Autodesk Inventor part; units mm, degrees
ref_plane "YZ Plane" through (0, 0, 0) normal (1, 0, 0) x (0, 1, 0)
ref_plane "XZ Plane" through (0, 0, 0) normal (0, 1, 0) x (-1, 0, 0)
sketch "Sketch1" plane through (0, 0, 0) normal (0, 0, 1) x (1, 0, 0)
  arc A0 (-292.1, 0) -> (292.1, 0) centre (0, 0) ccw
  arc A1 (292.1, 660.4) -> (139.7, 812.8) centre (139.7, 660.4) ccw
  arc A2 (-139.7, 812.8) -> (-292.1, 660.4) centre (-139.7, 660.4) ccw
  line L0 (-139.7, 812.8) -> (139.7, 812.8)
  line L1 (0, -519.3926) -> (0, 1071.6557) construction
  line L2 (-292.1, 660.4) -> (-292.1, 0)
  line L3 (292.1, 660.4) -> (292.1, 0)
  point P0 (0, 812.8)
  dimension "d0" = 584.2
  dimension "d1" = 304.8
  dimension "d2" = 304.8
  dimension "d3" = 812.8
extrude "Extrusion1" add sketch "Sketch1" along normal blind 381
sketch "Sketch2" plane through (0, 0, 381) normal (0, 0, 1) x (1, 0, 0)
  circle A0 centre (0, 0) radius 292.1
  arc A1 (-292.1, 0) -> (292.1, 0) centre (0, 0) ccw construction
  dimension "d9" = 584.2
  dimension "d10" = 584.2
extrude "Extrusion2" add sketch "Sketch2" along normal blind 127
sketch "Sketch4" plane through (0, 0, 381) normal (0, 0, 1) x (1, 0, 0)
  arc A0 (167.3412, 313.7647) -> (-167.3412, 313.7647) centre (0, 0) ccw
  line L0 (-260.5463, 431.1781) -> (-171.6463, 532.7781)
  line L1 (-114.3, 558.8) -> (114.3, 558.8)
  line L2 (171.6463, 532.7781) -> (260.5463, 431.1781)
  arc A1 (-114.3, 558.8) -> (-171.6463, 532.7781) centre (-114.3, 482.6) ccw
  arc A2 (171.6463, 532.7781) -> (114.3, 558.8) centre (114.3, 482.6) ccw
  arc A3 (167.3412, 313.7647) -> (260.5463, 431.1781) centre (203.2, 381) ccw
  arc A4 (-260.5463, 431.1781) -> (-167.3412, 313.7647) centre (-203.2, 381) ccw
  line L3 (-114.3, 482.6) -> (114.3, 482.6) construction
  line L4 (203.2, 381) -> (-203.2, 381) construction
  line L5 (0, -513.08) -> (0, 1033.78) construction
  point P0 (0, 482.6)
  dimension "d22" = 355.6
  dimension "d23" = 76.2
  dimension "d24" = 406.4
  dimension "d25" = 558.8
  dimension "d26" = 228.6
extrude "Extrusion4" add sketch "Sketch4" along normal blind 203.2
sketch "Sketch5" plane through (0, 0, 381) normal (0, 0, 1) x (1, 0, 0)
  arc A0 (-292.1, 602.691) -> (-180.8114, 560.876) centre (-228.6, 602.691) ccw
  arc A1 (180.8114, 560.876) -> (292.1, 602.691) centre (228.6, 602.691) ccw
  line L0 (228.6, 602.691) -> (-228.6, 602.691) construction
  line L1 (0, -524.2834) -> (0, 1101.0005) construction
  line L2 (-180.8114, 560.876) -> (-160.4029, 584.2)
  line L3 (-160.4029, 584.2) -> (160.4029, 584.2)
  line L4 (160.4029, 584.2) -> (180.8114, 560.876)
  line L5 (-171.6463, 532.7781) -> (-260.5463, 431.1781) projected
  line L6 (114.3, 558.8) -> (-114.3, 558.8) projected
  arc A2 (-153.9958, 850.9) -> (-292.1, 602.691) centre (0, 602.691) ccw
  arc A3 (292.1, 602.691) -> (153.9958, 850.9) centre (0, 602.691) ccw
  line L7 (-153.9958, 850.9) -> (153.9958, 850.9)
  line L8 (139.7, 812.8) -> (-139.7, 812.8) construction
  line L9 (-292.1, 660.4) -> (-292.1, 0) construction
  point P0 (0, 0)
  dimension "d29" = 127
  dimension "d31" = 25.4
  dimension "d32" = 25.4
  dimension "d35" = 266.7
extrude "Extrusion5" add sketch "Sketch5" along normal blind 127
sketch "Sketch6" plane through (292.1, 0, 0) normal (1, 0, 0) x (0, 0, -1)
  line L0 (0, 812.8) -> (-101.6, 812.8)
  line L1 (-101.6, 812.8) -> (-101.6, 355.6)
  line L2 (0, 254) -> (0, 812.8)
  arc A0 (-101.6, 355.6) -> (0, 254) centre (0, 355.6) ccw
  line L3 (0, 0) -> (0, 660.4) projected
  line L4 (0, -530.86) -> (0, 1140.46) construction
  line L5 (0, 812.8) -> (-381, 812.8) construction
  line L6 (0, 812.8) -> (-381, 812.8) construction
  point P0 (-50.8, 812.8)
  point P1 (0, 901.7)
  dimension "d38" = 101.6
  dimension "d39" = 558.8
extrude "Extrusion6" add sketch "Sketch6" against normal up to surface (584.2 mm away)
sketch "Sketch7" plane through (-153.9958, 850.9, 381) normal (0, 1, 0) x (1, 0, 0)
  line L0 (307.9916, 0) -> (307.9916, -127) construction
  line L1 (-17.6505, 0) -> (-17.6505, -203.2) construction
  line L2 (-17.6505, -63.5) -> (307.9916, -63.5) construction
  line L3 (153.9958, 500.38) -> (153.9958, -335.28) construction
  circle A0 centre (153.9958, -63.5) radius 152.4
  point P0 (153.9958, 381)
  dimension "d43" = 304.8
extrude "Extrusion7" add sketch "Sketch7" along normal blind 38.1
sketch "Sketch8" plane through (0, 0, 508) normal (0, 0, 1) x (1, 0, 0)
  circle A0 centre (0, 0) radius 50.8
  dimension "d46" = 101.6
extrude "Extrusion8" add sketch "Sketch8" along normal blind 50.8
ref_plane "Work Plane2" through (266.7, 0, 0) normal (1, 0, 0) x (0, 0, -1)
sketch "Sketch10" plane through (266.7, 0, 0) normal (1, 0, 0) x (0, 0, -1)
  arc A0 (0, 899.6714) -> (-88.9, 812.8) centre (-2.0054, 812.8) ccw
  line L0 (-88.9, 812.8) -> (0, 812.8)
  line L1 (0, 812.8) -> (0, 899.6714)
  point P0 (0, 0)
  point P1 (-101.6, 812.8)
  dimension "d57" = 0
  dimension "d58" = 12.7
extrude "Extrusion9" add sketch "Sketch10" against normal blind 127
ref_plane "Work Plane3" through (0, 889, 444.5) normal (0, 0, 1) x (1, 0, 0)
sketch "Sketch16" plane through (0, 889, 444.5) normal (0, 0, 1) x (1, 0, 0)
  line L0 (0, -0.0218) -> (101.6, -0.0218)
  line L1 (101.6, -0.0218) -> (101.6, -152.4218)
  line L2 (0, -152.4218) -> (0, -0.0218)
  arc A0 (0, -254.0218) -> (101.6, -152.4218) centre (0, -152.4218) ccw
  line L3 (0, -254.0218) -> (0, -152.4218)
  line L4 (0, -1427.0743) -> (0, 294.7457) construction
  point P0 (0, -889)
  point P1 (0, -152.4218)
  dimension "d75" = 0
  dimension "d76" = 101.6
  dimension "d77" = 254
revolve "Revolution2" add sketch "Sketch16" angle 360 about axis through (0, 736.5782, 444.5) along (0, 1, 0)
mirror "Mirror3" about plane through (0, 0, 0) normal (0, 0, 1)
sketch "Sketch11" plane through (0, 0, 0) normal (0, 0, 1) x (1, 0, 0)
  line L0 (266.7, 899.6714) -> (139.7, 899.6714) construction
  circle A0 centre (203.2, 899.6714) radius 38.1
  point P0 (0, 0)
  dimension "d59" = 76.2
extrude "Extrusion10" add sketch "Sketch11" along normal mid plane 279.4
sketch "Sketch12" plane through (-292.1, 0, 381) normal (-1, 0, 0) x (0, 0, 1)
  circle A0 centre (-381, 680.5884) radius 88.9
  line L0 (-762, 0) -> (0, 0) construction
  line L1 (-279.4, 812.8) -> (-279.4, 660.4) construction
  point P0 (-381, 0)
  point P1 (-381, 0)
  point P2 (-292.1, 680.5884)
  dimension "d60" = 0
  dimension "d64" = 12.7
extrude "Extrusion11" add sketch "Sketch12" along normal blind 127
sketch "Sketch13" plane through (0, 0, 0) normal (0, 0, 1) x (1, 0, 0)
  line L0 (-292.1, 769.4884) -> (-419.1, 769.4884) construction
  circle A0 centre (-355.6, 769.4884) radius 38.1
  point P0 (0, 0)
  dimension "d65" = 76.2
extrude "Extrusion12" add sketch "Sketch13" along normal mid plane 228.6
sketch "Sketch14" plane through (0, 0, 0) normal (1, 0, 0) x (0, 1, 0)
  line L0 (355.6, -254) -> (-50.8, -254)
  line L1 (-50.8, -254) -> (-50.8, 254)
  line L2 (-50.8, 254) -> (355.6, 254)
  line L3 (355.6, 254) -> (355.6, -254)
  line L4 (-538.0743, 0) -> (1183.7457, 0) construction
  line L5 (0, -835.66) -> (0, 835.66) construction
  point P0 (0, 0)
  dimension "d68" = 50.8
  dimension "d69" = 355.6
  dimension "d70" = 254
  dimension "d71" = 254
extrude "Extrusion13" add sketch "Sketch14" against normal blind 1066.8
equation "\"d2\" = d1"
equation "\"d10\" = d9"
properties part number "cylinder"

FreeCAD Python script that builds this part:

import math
import FreeCAD as App
import Part
import Sketcher
from FreeCAD import Vector
Q = App.Units.Quantity


def add_polygon(sketch, points):
    """Adds a closed chain of lines whose ends are joined by coincident constraints."""
    first, n = sketch.GeometryCount, len(points)
    for a, b in zip(points, points[1:] + points[:1]):
        sketch.addGeometry(Part.LineSegment(App.Vector(*a, 0), App.Vector(*b, 0)), False)
    for i in range(n):
        sketch.addConstraint(Sketcher.Constraint("Coincident", first + i, 2, first + (i + 1) % n, 1))

doc = App.newDocument("Part")
body = doc.addObject("PartDesign::Body", "Body")

sketch1 = body.newObject("Sketcher::SketchObject", "Sketch")
sketch1.AttachmentSupport = (doc.getObject("XY_Plane"), [""])
sketch1.MapMode = "FlatFace"
sketch1.addGeometry(Part.LineSegment(Vector(-292, 660, 0), Vector(-292, 0, 0)), False)
sketch1.addGeometry(Part.ArcOfCircle(Part.Circle(Vector(0, 0, 0), Vector(0, 0, 1), 292), math.radians(180), math.radians(360)), False)
sketch1.addGeometry(Part.LineSegment(Vector(292, 0, 0), Vector(292, 660, 0)), False)
sketch1.addGeometry(Part.ArcOfCircle(Part.Circle(Vector(140, 660, 0), Vector(0, 0, 1), 152), math.radians(0), math.radians(90)), False)
sketch1.addGeometry(Part.LineSegment(Vector(140, 813, 0), Vector(-140, 813, 0)), False)
sketch1.addGeometry(Part.ArcOfCircle(Part.Circle(Vector(-140, 660, 0), Vector(0, 0, 1), 152), math.radians(90), math.radians(180)), False)
sketch1.addConstraint(Sketcher.Constraint("Tangent", 0, 2, 1, 1))
sketch1.addConstraint(Sketcher.Constraint("Tangent", 1, 2, 2, 1))
sketch1.addConstraint(Sketcher.Constraint("Tangent", 2, 2, 3, 1))
sketch1.addConstraint(Sketcher.Constraint("Tangent", 3, 2, 4, 1))
sketch1.addConstraint(Sketcher.Constraint("Tangent", 4, 2, 5, 1))
sketch1.addConstraint(Sketcher.Constraint("Tangent", 5, 2, 0, 1))
sketch1.addConstraint(Sketcher.Constraint("Vertical", 0))
sketch1.addConstraint(Sketcher.Constraint("Vertical", 2))
sketch1.addConstraint(Sketcher.Constraint("Horizontal", 4))
sketch1.addConstraint(Sketcher.Constraint("Coincident", 1, 3, -1, 1))
sketch1.addConstraint(Sketcher.Constraint("Equal", 3, 5))
sketch1.addConstraint(Sketcher.Constraint("Radius", 3, Q("6 in")))
sketch1.addConstraint(Sketcher.Constraint("Radius", 1, Q("11.5 in")))
sketch1.addConstraint(Sketcher.Constraint("DistanceY", -1, 1, 3, 2, Q("32 in")))
pad1 = body.newObject("PartDesign::Pad", "Pad")
pad1.Profile = sketch1
pad1.Length = Q("15 in")

sketch2 = body.newObject("Sketcher::SketchObject", "Sketch001")
sketch2.AttachmentSupport = (doc.getObject("XY_Plane"), [""])
sketch2.MapMode = "FlatFace"
sketch2.AttachmentOffset = App.Placement(Vector(0, 0, 15 * 25.4), App.Rotation())
sketch2.addGeometry(Part.Circle(Vector(0, 0, 0), Vector(0, 0, 1), 292), False)
sketch2.addConstraint(Sketcher.Constraint("Coincident", 0, 3, -1, 1))
sketch2.addConstraint(Sketcher.Constraint("Diameter", 0, Q("23 in")))
pad2 = body.newObject("PartDesign::Pad", "Pad001")
pad2.Profile = sketch2
pad2.Length = Q("5 in")

sketch3 = body.newObject("Sketcher::SketchObject", "Sketch002")
sketch3.AttachmentSupport = (doc.getObject("XY_Plane"), [""])
sketch3.MapMode = "FlatFace"
sketch3.AttachmentOffset = App.Placement(Vector(0, 0, 15 * 25.4), App.Rotation())
sketch3.addGeometry(Part.ArcOfCircle(Part.Circle(Vector(0, 0, 0), Vector(0, 0, 1), 356), math.radians(62), math.radians(118)), False)
sketch3.addGeometry(Part.ArcOfCircle(Part.Circle(Vector(203, 381, 0), Vector(0, 0, 1), 76), math.radians(-118), math.radians(41)), False)
sketch3.addGeometry(Part.LineSegment(Vector(261, 431, 0), Vector(172, 533, 0)), False)
sketch3.addGeometry(Part.ArcOfCircle(Part.Circle(Vector(114, 483, 0), Vector(0, 0, 1), 76), math.radians(41), math.radians(90)), False)
sketch3.addGeometry(Part.LineSegment(Vector(114, 559, 0), Vector(-114, 559, 0)), False)
sketch3.addGeometry(Part.ArcOfCircle(Part.Circle(Vector(-114, 483, 0), Vector(0, 0, 1), 76), math.radians(90), math.radians(139)), False)
sketch3.addGeometry(Part.LineSegment(Vector(-172, 533, 0), Vector(-261, 431, 0)), False)
sketch3.addGeometry(Part.ArcOfCircle(Part.Circle(Vector(-203, 381, 0), Vector(0, 0, 1), 76), math.radians(139), math.radians(298)), False)
sketch3.addConstraint(Sketcher.Constraint("Tangent", 0, 1, 1, 1))
sketch3.addConstraint(Sketcher.Constraint("Tangent", 1, 2, 2, 1))
sketch3.addConstraint(Sketcher.Constraint("Tangent", 2, 2, 3, 1))
sketch3.addConstraint(Sketcher.Constraint("Tangent", 3, 2, 4, 1))
sketch3.addConstraint(Sketcher.Constraint("Tangent", 4, 2, 5, 1))
sketch3.addConstraint(Sketcher.Constraint("Tangent", 5, 2, 6, 1))
sketch3.addConstraint(Sketcher.Constraint("Tangent", 6, 2, 7, 1))
sketch3.addConstraint(Sketcher.Constraint("Tangent", 7, 2, 0, 2))
sketch3.addConstraint(Sketcher.Constraint("Horizontal", 4))
sketch3.addConstraint(Sketcher.Constraint("Coincident", 0, 3, -1, 1))
sketch3.addConstraint(Sketcher.Constraint("Equal", 1, 3))
sketch3.addConstraint(Sketcher.Constraint("Equal", 3, 5))
sketch3.addConstraint(Sketcher.Constraint("Equal", 5, 7))
sketch3.addConstraint(Sketcher.Constraint("Symmetric", 2, 2, 5, 2, -2))
sketch3.addConstraint(Sketcher.Constraint("Radius", 0, Q("14 in")))
sketch3.addConstraint(Sketcher.Constraint("Radius", 1, Q("3 in")))
sketch3.addConstraint(Sketcher.Constraint("DistanceX", 4, 2, 4, 1, Q("9 in")))
sketch3.addConstraint(Sketcher.Constraint("DistanceY", -1, 1, 3, 2, Q("22 in")))
sketch3.addConstraint(Sketcher.Constraint("DistanceX", 7, 3, 1, 3, Q("16 in")))
pad3 = body.newObject("PartDesign::Pad", "Pad002")
pad3.Profile = sketch3
pad3.Length = Q("8 in")

sketch4 = body.newObject("Sketcher::SketchObject", "Sketch003")
sketch4.AttachmentSupport = (doc.getObject("XY_Plane"), [""])
sketch4.MapMode = "FlatFace"
sketch4.AttachmentOffset = App.Placement(Vector(0, 0, 15 * 25.4), App.Rotation())
sketch4.addGeometry(Part.ArcOfCircle(Part.Circle(Vector(0, 603, 0), Vector(0, 0, 1), 292), math.radians(122), math.radians(180)), False)
sketch4.addGeometry(Part.ArcOfCircle(Part.Circle(Vector(-229, 603, 0), Vector(0, 0, 1), 64), math.radians(180), math.radians(319)), False)
sketch4.addGeometry(Part.LineSegment(Vector(-181, 561, 0), Vector(-160, 584, 0)), False)
sketch4.addGeometry(Part.LineSegment(Vector(-160, 584, 0), Vector(160, 584, 0)), False)
sketch4.addGeometry(Part.LineSegment(Vector(160, 584, 0), Vector(181, 561, 0)), False)
sketch4.addGeometry(Part.ArcOfCircle(Part.Circle(Vector(229, 603, 0), Vector(0, 0, 1), 63), math.radians(-139), math.radians(0)), False)
sketch4.addGeometry(Part.ArcOfCircle(Part.Circle(Vector(0, 603, 0), Vector(0, 0, 1), 292), math.radians(0), math.radians(58)), False)
sketch4.addGeometry(Part.LineSegment(Vector(154, 851, 0), Vector(-154, 851, 0)), False)
sketch4.addConstraint(Sketcher.Constraint("Tangent", 0, 2, 1, 1))
sketch4.addConstraint(Sketcher.Constraint("Tangent", 1, 2, 2, 1))
sketch4.addConstraint(Sketcher.Constraint("Coincident", 2, 2, 3, 1))
sketch4.addConstraint(Sketcher.Constraint("Coincident", 3, 2, 4, 1))
sketch4.addConstraint(Sketcher.Constraint("Tangent", 4, 2, 5, 1))
sketch4.addConstraint(Sketcher.Constraint("Tangent", 5, 2, 6, 1))
sketch4.addConstraint(Sketcher.Constraint("Coincident", 6, 2, 7, 1))
sketch4.addConstraint(Sketcher.Constraint("Coincident", 7, 2, 0, 1))
sketch4.addConstraint(Sketcher.Constraint("Horizontal", 3))
sketch4.addConstraint(Sketcher.Constraint("Horizontal", 7))
sketch4.addConstraint(Sketcher.Constraint("Coincident", 6, 3, 0, 3))
sketch4.addConstraint(Sketcher.Constraint("Equal", 1, 5))
sketch4.addConstraint(Sketcher.Constraint("Equal", 0, 6))
sketch4.addConstraint(Sketcher.Constraint("Symmetric", 1, 3, 5, 3, -2))
sketch4.addConstraint(Sketcher.Constraint("Horizontal", 0, 3, 1, 3))
sketch4.addConstraint(Sketcher.Constraint("Horizontal", 1, 2, 4, 2))
sketch4.addConstraint(Sketcher.Constraint("Radius", 1, Q("2.5 in")))
sketch4.addConstraint(Sketcher.Constraint("Radius", 0, Q("11.5 in")))
sketch4.addConstraint(Sketcher.Constraint("DistanceY", 3, 2, 6, 2, Q("10.5 in")))
sketch4.addConstraint(Sketcher.Constraint("DistanceY", -1, 1, 2, 2, Q("23 in")))
sketch4.addConstraint(Sketcher.Constraint("DistanceY", -1, 1, 0, 3, Q("23.728 in")))
sketch4.addConstraint(Sketcher.Constraint("DistanceX", 3, 1, 3, 2, Q("320.8058 mm")))
pad4 = body.newObject("PartDesign::Pad", "Pad003")
pad4.Profile = sketch4
pad4.Length = Q("5 in")

sketch5 = body.newObject("Sketcher::SketchObject", "Sketch004")
sketch5.AttachmentSupport = (doc.getObject("YZ_Plane"), [""])
sketch5.MapMode = "FlatFace"
sketch5.AttachmentOffset = App.Placement(Vector(0, 0, 11.5 * 25.4), App.Rotation())
sketch5.addGeometry(Part.LineSegment(Vector(254, 0, 0), Vector(813, 0, 0)), False)
sketch5.addGeometry(Part.LineSegment(Vector(813, 0, 0), Vector(813, 102, 0)), False)
sketch5.addGeometry(Part.LineSegment(Vector(813, 102, 0), Vector(356, 102, 0)), False)
sketch5.addGeometry(Part.ArcOfCircle(Part.Circle(Vector(356, 0, 0), Vector(0, 0, 1), 102), math.radians(90), math.radians(180)), False)
sketch5.addConstraint(Sketcher.Constraint("Coincident", 0, 2, 1, 1))
sketch5.addConstraint(Sketcher.Constraint("Coincident", 1, 2, 2, 1))
sketch5.addConstraint(Sketcher.Constraint("Tangent", 2, 2, 3, 1))
sketch5.addConstraint(Sketcher.Constraint("Coincident", 3, 2, 0, 1))
sketch5.addConstraint(Sketcher.Constraint("Horizontal", 0))
sketch5.addConstraint(Sketcher.Constraint("Vertical", 1))
sketch5.addConstraint(Sketcher.Constraint("Horizontal", 2))
sketch5.addConstraint(Sketcher.Constraint("PointOnObject", 3, 3, -1))
sketch5.addConstraint(Sketcher.Constraint("PointOnObject", 0, 2, -1))
sketch5.addConstraint(Sketcher.Constraint("Radius", 3, Q("4 in")))
sketch5.addConstraint(Sketcher.Constraint("DistanceX", 0, 1, 0, 2, Q("22 in")))
sketch5.addConstraint(Sketcher.Constraint("DistanceX", -1, 1, 3, 3, Q("14 in")))
pad5 = body.newObject("PartDesign::Pad", "Pad004")
pad5.Profile = sketch5
pad5.Length = Q("23 in")
pad5.Reversed = True

sketch6 = body.newObject("Sketcher::SketchObject", "Sketch005")
sketch6.AttachmentSupport = (doc.getObject("XZ_Plane"), [""])
sketch6.MapMode = "FlatFace"
sketch6.AttachmentOffset = App.Placement(Vector(0, 0, -33.5 * 25.4), App.Rotation())
sketch6.addGeometry(Part.Circle(Vector(0, 444, 0), Vector(0, 0, 1), 152), False)
sketch6.addConstraint(Sketcher.Constraint("PointOnObject", 0, 3, -2))
sketch6.addConstraint(Sketcher.Constraint("Diameter", 0, Q("12 in")))
sketch6.addConstraint(Sketcher.Constraint("DistanceY", -1, 1, 0, 3, Q("17.5 in")))
pad6 = body.newObject("PartDesign::Pad", "Pad005")
pad6.Profile = sketch6
pad6.Length = Q("1.5 in")
pad6.Reversed = True

sketch7 = body.newObject("Sketcher::SketchObject", "Sketch006")
sketch7.AttachmentSupport = (doc.getObject("XY_Plane"), [""])
sketch7.MapMode = "FlatFace"
sketch7.AttachmentOffset = App.Placement(Vector(0, 0, 20 * 25.4), App.Rotation())
sketch7.addGeometry(Part.Circle(Vector(0, 0, 0), Vector(0, 0, 1), 51), False)
sketch7.addConstraint(Sketcher.Constraint("Coincident", 0, 3, -1, 1))
sketch7.addConstraint(Sketcher.Constraint("Diameter", 0, Q("4 in")))
pad7 = body.newObject("PartDesign::Pad", "Pad006")
pad7.Profile = sketch7
pad7.Length = Q("2 in")

sketch8 = body.newObject("Sketcher::SketchObject", "Sketch007")
sketch8.AttachmentSupport = (doc.getObject("YZ_Plane"), [""])
sketch8.MapMode = "FlatFace"
sketch8.AttachmentOffset = App.Placement(Vector(0, 0, 10.5 * 25.4), App.Rotation())
sketch8.addGeometry(Part.LineSegment(Vector(813, 0, 0), Vector(900, 0, 0)), False)
sketch8.addGeometry(Part.ArcOfCircle(Part.Circle(Vector(813, 2, 0), Vector(0, 0, 1), 87), math.radians(-1), math.radians(90)), False)
sketch8.addGeometry(Part.LineSegment(Vector(813, 89, 0), Vector(813, 0, 0)), False)
sketch8.addConstraint(Sketcher.Constraint("Coincident", 0, 2, 1, 1))
sketch8.addConstraint(Sketcher.Constraint("Coincident", 1, 2, 2, 1))
sketch8.addConstraint(Sketcher.Constraint("Coincident", 2, 2, 0, 1))
sketch8.addConstraint(Sketcher.Constraint("Horizontal", 0))
sketch8.addConstraint(Sketcher.Constraint("Vertical", 2))
sketch8.addConstraint(Sketcher.Constraint("PointOnObject", 0, 2, -1))
sketch8.addConstraint(Sketcher.Constraint("DistanceY", 2, 2, 2, 1, Q("3.5 in")))
sketch8.addConstraint(Sketcher.Constraint("DistanceX", -1, 1, 1, 3, Q("32 in")))
sketch8.addConstraint(Sketcher.Constraint("DistanceX", -1, 1, 1, 2, Q("32 in")))
sketch8.addConstraint(Sketcher.Constraint("Radius", 1, Q("86.8945 mm")))
pad8 = body.newObject("PartDesign::Pad", "Pad007")
pad8.Profile = sketch8
pad8.Length = Q("5 in")
pad8.Reversed = True

sketch9 = body.newObject("Sketcher::SketchObject", "Sketch008")
sketch9.AttachmentSupport = (doc.getObject("XY_Plane"), [""])
sketch9.MapMode = "FlatFace"
sketch9.AttachmentOffset = App.Placement(Vector(0, 0, 17.5 * 25.4), App.Rotation())
sketch9.addGeometry(Part.LineSegment(Vector(102, 889, 0), Vector(0, 889, 0)), False)
sketch9.addGeometry(Part.LineSegment(Vector(0, 889, 0), Vector(0, 635, 0)), False)
sketch9.addGeometry(Part.ArcOfCircle(Part.Circle(Vector(0, 737, 0), Vector(0, 0, 1), 102), math.radians(-90), math.radians(0)), False)
sketch9.addGeometry(Part.LineSegment(Vector(102, 737, 0), Vector(102, 889, 0)), False)
sketch9.addConstraint(Sketcher.Constraint("Coincident", 0, 2, 1, 1))
sketch9.addConstraint(Sketcher.Constraint("Coincident", 1, 2, 2, 1))
sketch9.addConstraint(Sketcher.Constraint("Tangent", 2, 2, 3, 1))
sketch9.addConstraint(Sketcher.Constraint("Coincident", 3, 2, 0, 1))
sketch9.addConstraint(Sketcher.Constraint("Horizontal", 0))
sketch9.addConstraint(Sketcher.Constraint("Vertical", 1))
sketch9.addConstraint(Sketcher.Constraint("Vertical", 3))
sketch9.addConstraint(Sketcher.Constraint("PointOnObject", 2, 3, -2))
sketch9.addConstraint(Sketcher.Constraint("PointOnObject", 0, 2, -2))
sketch9.addConstraint(Sketcher.Constraint("Radius", 2, Q("4 in")))
sketch9.addConstraint(Sketcher.Constraint("DistanceY", 1, 2, 1, 1, Q("10 in")))
sketch9.addConstraint(Sketcher.Constraint("DistanceY", -1, 1, 2, 3, Q("736.5782 mm")))
revolution = body.newObject("PartDesign::Revolution", "Revolution")
revolution.Profile = sketch9
revolution.ReferenceAxis = (sketch9, ["V_Axis"])
revolution.Angle = 360
doc.recompute()

mirrored = body.newObject("PartDesign::Mirrored", "Mirrored")
mirrored.TransformMode = "Transform body"
mirrored.MirrorPlane = (doc.getObject("XY_Plane"), [""])
body.Tip = mirrored

sketch10 = body.newObject("Sketcher::SketchObject", "Sketch009")
sketch10.AttachmentSupport = (doc.getObject("XY_Plane"), [""])
sketch10.MapMode = "FlatFace"
sketch10.addGeometry(Part.Circle(Vector(203, 900, 0), Vector(0, 0, 1), 38), False)
sketch10.addConstraint(Sketcher.Constraint("Diameter", 0, Q("3 in")))
sketch10.addConstraint(Sketcher.Constraint("DistanceX", -1, 1, 0, 3, Q("8 in")))
sketch10.addConstraint(Sketcher.Constraint("DistanceY", -1, 1, 0, 3, Q("899.6714 mm")))
pad9 = body.newObject("PartDesign::Pad", "Pad008")
pad9.Profile = sketch10
pad9.Length = Q("11 in")
pad9.Midplane = True

sketch11 = body.newObject("Sketcher::SketchObject", "Sketch010")
sketch11.AttachmentSupport = (doc.getObject("YZ_Plane"), [""])
sketch11.MapMode = "FlatFace"
sketch11.AttachmentOffset = App.Placement(Vector(0, 0, -11.5 * 25.4), App.Rotation())
sketch11.addGeometry(Part.Circle(Vector(681, 0, 0), Vector(0, 0, 1), 89), False)
sketch11.addConstraint(Sketcher.Constraint("PointOnObject", 0, 3, -1))
sketch11.addConstraint(Sketcher.Constraint("Diameter", 0, Q("7 in")))
sketch11.addConstraint(Sketcher.Constraint("DistanceX", -1, 1, 0, 3, Q("680.5884 mm")))
pad10 = body.newObject("PartDesign::Pad", "Pad009")
pad10.Profile = sketch11
pad10.Length = Q("5 in")
pad10.Reversed = True

sketch12 = body.newObject("Sketcher::SketchObject", "Sketch011")
sketch12.AttachmentSupport = (doc.getObject("XY_Plane"), [""])
sketch12.MapMode = "FlatFace"
sketch12.addGeometry(Part.Circle(Vector(-356, 769, 0), Vector(0, 0, 1), 38), False)
sketch12.addConstraint(Sketcher.Constraint("Diameter", 0, Q("3 in")))
sketch12.addConstraint(Sketcher.Constraint("DistanceX", 0, 3, -1, 1, Q("14 in")))
sketch12.addConstraint(Sketcher.Constraint("DistanceY", -1, 1, 0, 3, Q("769.4884 mm")))
pad11 = body.newObject("PartDesign::Pad", "Pad010")
pad11.Profile = sketch12
pad11.Length = Q("9 in")
pad11.Midplane = True

sketch13 = body.newObject("Sketcher::SketchObject", "Sketch012")
sketch13.AttachmentSupport = (doc.getObject("YZ_Plane"), [""])
sketch13.MapMode = "FlatFace"
add_polygon(sketch13, [(-51, -254), (356, -254), (356, 254), (-51, 254)])
sketch13.addConstraint(Sketcher.Constraint("Horizontal", 0))
sketch13.addConstraint(Sketcher.Constraint("Vertical", 1))
sketch13.addConstraint(Sketcher.Constraint("Horizontal", 2))
sketch13.addConstraint(Sketcher.Constraint("Vertical", 3))
sketch13.addConstraint(Sketcher.Constraint("DistanceX", -1, 1, 0, 2, Q("14 in")))
sketch13.addConstraint(Sketcher.Constraint("DistanceY", 0, 2, -1, 1, Q("10 in")))
sketch13.addConstraint(Sketcher.Constraint("DistanceY", -1, 1, 1, 2, Q("10 in")))
sketch13.addConstraint(Sketcher.Constraint("DistanceX", 2, 2, -1, 1, Q("2 in")))
pad12 = body.newObject("PartDesign::Pad", "Pad011")
pad12.Profile = sketch13
pad12.Length = Q("42 in")
pad12.Reversed = True

doc.recompute()
